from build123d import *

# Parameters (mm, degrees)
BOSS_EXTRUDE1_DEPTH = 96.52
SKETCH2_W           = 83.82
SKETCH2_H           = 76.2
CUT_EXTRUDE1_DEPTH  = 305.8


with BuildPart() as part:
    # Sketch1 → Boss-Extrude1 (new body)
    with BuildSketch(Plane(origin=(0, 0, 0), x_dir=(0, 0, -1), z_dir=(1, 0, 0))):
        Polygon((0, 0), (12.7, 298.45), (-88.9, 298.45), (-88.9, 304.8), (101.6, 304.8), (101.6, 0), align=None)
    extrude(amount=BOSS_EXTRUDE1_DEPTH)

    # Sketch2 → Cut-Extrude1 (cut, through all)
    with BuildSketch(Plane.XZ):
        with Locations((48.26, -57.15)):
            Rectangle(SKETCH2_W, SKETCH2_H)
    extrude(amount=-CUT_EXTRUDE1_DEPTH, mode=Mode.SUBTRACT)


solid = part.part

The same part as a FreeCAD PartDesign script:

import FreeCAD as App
import Part
import Sketcher
from FreeCAD import Vector
Q = App.Units.Quantity


def add_polygon(sketch, points):
    """Adds a closed chain of lines whose ends are joined by coincident constraints."""
    first, n = sketch.GeometryCount, len(points)
    for a, b in zip(points, points[1:] + points[:1]):
        sketch.addGeometry(Part.LineSegment(App.Vector(*a, 0), App.Vector(*b, 0)), False)
    for i in range(n):
        sketch.addConstraint(Sketcher.Constraint("Coincident", first + i, 2, first + (i + 1) % n, 1))

doc = App.newDocument("Part")
body = doc.addObject("PartDesign::Body", "Body")

# Sketch on YZ plane
sketch1 = body.newObject("Sketcher::SketchObject", "Sketch")
sketch1.AttachmentSupport = (doc.getObject("YZ_Plane"), [""])
sketch1.MapMode = "FlatFace"
add_polygon(sketch1, [(298, -13), (0, 0), (0, -102), (305, -102), (305, 89), (298, 89)])  # lines 0-5
sketch1.addConstraint([
    Sketcher.Constraint("Vertical", 1),
    Sketcher.Constraint("Horizontal", 2),
    Sketcher.Constraint("Vertical", 3),
    Sketcher.Constraint("Horizontal", 4),
    Sketcher.Constraint("Vertical", 5),
    Sketcher.Constraint("Coincident", 0, 2, -1, 1),
    Sketcher.Constraint("Equal", 1, 5),
    Sketcher.Constraint("DistanceX", 2, 1, 2, 2, Q("12 in")),
    Sketcher.Constraint("DistanceY", 1, 2, 1, 1, Q("4 in")),
    Sketcher.Constraint("DistanceY", 3, 1, 3, 2, Q("7.5 in")),
    Sketcher.Constraint("DistanceX", 4, 2, 4, 1, Q("0.25 in")),
])
pad1 = body.newObject("PartDesign::Pad", "Pad")
pad1.Profile = sketch1
pad1.Length = Q("3.8 in")

# Sketch on XZ plane
sketch2 = body.newObject("Sketcher::SketchObject", "Sketch001")
sketch2.AttachmentSupport = (doc.getObject("XZ_Plane"), [""])
sketch2.MapMode = "FlatFace"
add_polygon(sketch2, [(6, -19), (6, -95), (90, -95), (90, -19)])  # lines 0-3
sketch2.addConstraint([
    Sketcher.Constraint("Vertical", 0),
    Sketcher.Constraint("Horizontal", 1),
    Sketcher.Constraint("Vertical", 2),
    Sketcher.Constraint("Horizontal", 3),
    Sketcher.Constraint("DistanceY", 0, 2, 0, 1, Q("3 in")),
    Sketcher.Constraint("DistanceX", 1, 1, 1, 2, Q("3.3 in")),
    Sketcher.Constraint("DistanceX", -1, 1, 0, 2, Q("0.25 in")),
    Sketcher.Constraint("DistanceY", 0, 2, -1, 1, Q("3.75 in")),
])
pocket1 = body.newObject("PartDesign::Pocket", "Pocket")
pocket1.Profile = sketch2
pocket1.Type = "ThroughAll"

doc.recompute()
